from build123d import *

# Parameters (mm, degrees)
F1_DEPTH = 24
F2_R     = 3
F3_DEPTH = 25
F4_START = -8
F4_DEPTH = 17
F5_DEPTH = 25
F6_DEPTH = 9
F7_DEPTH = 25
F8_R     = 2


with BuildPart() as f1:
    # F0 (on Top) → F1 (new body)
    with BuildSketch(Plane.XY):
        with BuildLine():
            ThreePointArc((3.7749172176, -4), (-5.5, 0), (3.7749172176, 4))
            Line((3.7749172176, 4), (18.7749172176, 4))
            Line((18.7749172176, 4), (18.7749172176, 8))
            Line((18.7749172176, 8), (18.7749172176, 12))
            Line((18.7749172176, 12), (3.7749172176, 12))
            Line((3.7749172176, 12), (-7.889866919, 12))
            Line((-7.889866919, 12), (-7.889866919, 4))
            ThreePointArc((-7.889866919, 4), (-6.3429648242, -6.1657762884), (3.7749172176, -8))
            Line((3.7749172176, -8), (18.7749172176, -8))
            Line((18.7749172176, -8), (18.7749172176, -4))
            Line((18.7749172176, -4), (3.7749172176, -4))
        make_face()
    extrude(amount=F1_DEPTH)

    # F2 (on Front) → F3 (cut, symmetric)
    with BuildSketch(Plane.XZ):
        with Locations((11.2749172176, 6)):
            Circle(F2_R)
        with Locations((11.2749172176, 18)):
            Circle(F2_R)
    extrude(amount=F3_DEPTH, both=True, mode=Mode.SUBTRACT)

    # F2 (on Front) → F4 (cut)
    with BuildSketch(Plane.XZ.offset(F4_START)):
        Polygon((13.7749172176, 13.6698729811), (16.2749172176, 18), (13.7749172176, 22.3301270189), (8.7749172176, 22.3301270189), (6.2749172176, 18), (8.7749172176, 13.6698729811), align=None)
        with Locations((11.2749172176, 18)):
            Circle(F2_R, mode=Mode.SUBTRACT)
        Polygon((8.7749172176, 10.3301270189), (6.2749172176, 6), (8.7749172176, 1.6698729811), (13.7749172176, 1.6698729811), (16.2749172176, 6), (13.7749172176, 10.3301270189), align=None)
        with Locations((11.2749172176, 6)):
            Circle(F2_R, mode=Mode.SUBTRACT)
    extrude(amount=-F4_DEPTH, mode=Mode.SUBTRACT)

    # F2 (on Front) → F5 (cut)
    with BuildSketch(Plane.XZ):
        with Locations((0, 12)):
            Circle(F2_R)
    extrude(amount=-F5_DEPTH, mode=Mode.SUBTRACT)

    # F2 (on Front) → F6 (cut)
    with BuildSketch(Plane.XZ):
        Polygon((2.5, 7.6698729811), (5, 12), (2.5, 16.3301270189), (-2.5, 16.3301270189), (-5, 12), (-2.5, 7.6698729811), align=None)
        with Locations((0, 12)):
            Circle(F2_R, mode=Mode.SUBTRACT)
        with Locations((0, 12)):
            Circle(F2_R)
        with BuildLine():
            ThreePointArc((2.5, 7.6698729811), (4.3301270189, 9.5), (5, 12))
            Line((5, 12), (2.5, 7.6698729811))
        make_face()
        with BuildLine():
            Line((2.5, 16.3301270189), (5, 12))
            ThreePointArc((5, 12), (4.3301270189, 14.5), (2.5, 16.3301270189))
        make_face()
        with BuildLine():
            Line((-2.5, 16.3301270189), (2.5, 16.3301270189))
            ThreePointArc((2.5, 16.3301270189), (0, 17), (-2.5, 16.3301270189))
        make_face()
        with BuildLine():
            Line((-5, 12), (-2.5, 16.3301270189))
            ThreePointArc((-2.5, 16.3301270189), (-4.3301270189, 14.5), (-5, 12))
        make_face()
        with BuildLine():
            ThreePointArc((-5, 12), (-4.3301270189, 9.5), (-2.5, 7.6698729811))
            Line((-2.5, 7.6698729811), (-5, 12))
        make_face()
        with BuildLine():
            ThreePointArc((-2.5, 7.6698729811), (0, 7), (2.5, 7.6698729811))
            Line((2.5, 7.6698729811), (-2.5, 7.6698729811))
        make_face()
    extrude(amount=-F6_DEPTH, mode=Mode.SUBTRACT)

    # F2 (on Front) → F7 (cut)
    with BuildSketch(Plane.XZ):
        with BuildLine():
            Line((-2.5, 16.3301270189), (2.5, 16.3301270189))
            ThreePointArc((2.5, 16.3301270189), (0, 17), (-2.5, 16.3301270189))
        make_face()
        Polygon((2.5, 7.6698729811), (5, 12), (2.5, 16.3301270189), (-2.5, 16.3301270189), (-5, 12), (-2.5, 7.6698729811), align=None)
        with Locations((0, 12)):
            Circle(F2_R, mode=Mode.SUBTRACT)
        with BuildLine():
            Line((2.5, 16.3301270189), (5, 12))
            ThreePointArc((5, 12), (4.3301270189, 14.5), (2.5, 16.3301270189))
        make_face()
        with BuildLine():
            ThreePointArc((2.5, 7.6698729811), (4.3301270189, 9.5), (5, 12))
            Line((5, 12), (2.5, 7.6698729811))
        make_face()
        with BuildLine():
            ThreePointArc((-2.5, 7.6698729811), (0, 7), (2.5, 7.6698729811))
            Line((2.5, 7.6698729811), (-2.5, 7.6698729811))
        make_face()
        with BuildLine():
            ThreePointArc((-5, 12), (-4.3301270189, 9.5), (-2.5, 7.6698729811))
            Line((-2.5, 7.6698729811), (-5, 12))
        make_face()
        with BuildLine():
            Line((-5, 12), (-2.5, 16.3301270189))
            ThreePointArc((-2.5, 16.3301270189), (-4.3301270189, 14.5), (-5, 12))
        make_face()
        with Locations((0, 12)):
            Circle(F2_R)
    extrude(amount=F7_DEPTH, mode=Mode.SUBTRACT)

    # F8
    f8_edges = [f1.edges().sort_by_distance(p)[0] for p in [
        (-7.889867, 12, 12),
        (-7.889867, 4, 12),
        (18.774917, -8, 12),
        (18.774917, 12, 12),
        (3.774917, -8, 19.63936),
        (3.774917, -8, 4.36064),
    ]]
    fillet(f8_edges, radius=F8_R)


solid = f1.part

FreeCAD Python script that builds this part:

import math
import FreeCAD as App
import Part
import Sketcher
Q = App.Units.Quantity


def edges_at(feature, points):
    """Names of the edges that pass closest to the given points."""
    edges = feature.Shape.Edges
    near = lambda p: min(range(len(edges)), key=lambda i: edges[i].distToShape(Part.Vertex(*p))[0])
    return sorted({f"Edge{near(p) + 1}" for p in points})

doc = App.newDocument("Part")
body = doc.addObject("PartDesign::Body", "Body")

sketch1 = doc.addObject("Sketcher::SketchObject", "Sketch")
body.addObject(sketch1)
sketch1.AttachmentSupport = (doc.XY_Plane, [""])
sketch1.MapMode = "FlatFace"
sketch1.addGeometry(Part.ArcOfCircle(Part.Circle(App.Vector(0, 0, 0), App.Vector(0, 0, 1), 5.5), math.radians(47), math.radians(313)), False)
sketch1.addGeometry(Part.LineSegment(App.Vector(3.8, 4, 0), App.Vector(18.8, 4, 0)), False)
sketch1.addGeometry(Part.LineSegment(App.Vector(18.8, 4, 0), App.Vector(18.8, 12, 0)), False)
sketch1.addGeometry(Part.LineSegment(App.Vector(18.8, 12, 0), App.Vector(-7.9, 12, 0)), False)
sketch1.addGeometry(Part.LineSegment(App.Vector(-7.9, 12, 0), App.Vector(-7.9, 4, 0)), False)
sketch1.addGeometry(Part.ArcOfCircle(Part.Circle(App.Vector(0, 0, 0), App.Vector(0, 0, 1), 8.8), math.radians(153), math.radians(295)), False)
sketch1.addGeometry(Part.LineSegment(App.Vector(3.8, -8, 0), App.Vector(18.8, -8, 0)), False)
sketch1.addGeometry(Part.LineSegment(App.Vector(18.8, -8, 0), App.Vector(18.8, -4, 0)), False)
sketch1.addGeometry(Part.LineSegment(App.Vector(18.8, -4, 0), App.Vector(3.8, -4, 0)), False)
sketch1.addConstraint(Sketcher.Constraint("Coincident", 0, 1, 1, 1))
sketch1.addConstraint(Sketcher.Constraint("Coincident", 1, 2, 2, 1))
sketch1.addConstraint(Sketcher.Constraint("Coincident", 2, 2, 3, 1))
sketch1.addConstraint(Sketcher.Constraint("Coincident", 3, 2, 4, 1))
sketch1.addConstraint(Sketcher.Constraint("Coincident", 4, 2, 5, 1))
sketch1.addConstraint(Sketcher.Constraint("Coincident", 5, 2, 6, 1))
sketch1.addConstraint(Sketcher.Constraint("Coincident", 6, 2, 7, 1))
sketch1.addConstraint(Sketcher.Constraint("Coincident", 7, 2, 8, 1))
sketch1.addConstraint(Sketcher.Constraint("Coincident", 8, 2, 0, 2))
sketch1.addConstraint(Sketcher.Constraint("Horizontal", 1))
sketch1.addConstraint(Sketcher.Constraint("Vertical", 2))
sketch1.addConstraint(Sketcher.Constraint("Horizontal", 3))
sketch1.addConstraint(Sketcher.Constraint("Vertical", 4))
sketch1.addConstraint(Sketcher.Constraint("Horizontal", 6))
sketch1.addConstraint(Sketcher.Constraint("Vertical", 7))
sketch1.addConstraint(Sketcher.Constraint("Horizontal", 8))
sketch1.addConstraint(Sketcher.Constraint("Coincident", 0, 3, -1, 1))
sketch1.addConstraint(Sketcher.Constraint("Coincident", 5, 3, -1, 1))
sketch1.addConstraint(Sketcher.Constraint("Symmetric", 1, 2, 7, 2, -1))
sketch1.addConstraint(Sketcher.Constraint("Horizontal", 1, 2, 4, 2))
sketch1.addConstraint(Sketcher.Constraint("Vertical", 0, 1, 5, 2))
sketch1.addConstraint(Sketcher.Constraint("Radius", 0, 5.5))
sketch1.addConstraint(Sketcher.Constraint("DistanceX", 1, 1, 1, 2, 15.0))
sketch1.addConstraint(Sketcher.Constraint("DistanceY", 2, 1, 2, 2, 8.0))
sketch1.addConstraint(Sketcher.Constraint("DistanceY", 7, 1, 7, 2, 4.0))
sketch1.addConstraint(Sketcher.Constraint("DistanceY", -1, 1, 0, 1, 4.0))
pad1 = doc.addObject("PartDesign::Pad", "Pad")
body.addObject(pad1)
pad1.Profile = sketch1
pad1.Length = 24

sketch2 = doc.addObject("Sketcher::SketchObject", "Sketch001")
body.addObject(sketch2)
sketch2.AttachmentSupport = (doc.XZ_Plane, [""])
sketch2.MapMode = "FlatFace"
sketch2.addGeometry(Part.Circle(App.Vector(11.3, 6, 0), App.Vector(0, 0, 1), 3), False)
sketch2.addGeometry(Part.Circle(App.Vector(11.3, 18, 0), App.Vector(0, 0, 1), 3), False)
sketch2.addConstraint(Sketcher.Constraint("Equal", 0, 1))
sketch2.addConstraint(Sketcher.Constraint("Vertical", 0, 3, 1, 3))
sketch2.addConstraint(Sketcher.Constraint("Diameter", 0, 6.0))
sketch2.addConstraint(Sketcher.Constraint("DistanceY", -1, 1, 0, 3, 6.0))
sketch2.addConstraint(Sketcher.Constraint("DistanceY", -1, 1, 1, 3, 18.0))
sketch2.addConstraint(Sketcher.Constraint("DistanceX", -1, 1, 0, 3, 11.274917))
pocket1 = doc.addObject("PartDesign::Pocket", "Pocket")
body.addObject(pocket1)
pocket1.Profile = sketch2
pocket1.Length = 50
pocket1.Midplane = True

sketch3 = doc.addObject("Sketcher::SketchObject", "Sketch002")
body.addObject(sketch3)
sketch3.AttachmentSupport = (doc.XZ_Plane, [""])
sketch3.MapMode = "FlatFace"
sketch3.AttachmentOffset = App.Placement(App.Vector(0, 0, -8), App.Rotation())
sketch3.addGeometry(Part.LineSegment(App.Vector(13.8, 13.7, 0), App.Vector(16.3, 18, 0)), False)
sketch3.addGeometry(Part.LineSegment(App.Vector(16.3, 18, 0), App.Vector(13.8, 22.3, 0)), False)
sketch3.addGeometry(Part.LineSegment(App.Vector(13.8, 22.3, 0), App.Vector(8.8, 22.3, 0)), False)
sketch3.addGeometry(Part.LineSegment(App.Vector(8.8, 22.3, 0), App.Vector(6.3, 18, 0)), False)
sketch3.addGeometry(Part.LineSegment(App.Vector(6.3, 18, 0), App.Vector(8.8, 13.7, 0)), False)
sketch3.addGeometry(Part.LineSegment(App.Vector(8.8, 13.7, 0), App.Vector(13.8, 13.7, 0)), False)
sketch3.addGeometry(Part.Circle(App.Vector(11.3, 18, 0), App.Vector(0, 0, 1), 3), False)
sketch3.addGeometry(Part.LineSegment(App.Vector(8.8, 10.3, 0), App.Vector(6.3, 6, 0)), False)
sketch3.addGeometry(Part.LineSegment(App.Vector(6.3, 6, 0), App.Vector(8.8, 1.7, 0)), False)
sketch3.addGeometry(Part.LineSegment(App.Vector(8.8, 1.7, 0), App.Vector(13.8, 1.7, 0)), False)
sketch3.addGeometry(Part.LineSegment(App.Vector(13.8, 1.7, 0), App.Vector(16.3, 6, 0)), False)
sketch3.addGeometry(Part.LineSegment(App.Vector(16.3, 6, 0), App.Vector(13.8, 10.3, 0)), False)
sketch3.addGeometry(Part.LineSegment(App.Vector(13.8, 10.3, 0), App.Vector(8.8, 10.3, 0)), False)
sketch3.addGeometry(Part.Circle(App.Vector(11.3, 6, 0), App.Vector(0, 0, 1), 3), False)
sketch3.addConstraint(Sketcher.Constraint("Coincident", 0, 2, 1, 1))
sketch3.addConstraint(Sketcher.Constraint("Coincident", 1, 2, 2, 1))
sketch3.addConstraint(Sketcher.Constraint("Coincident", 2, 2, 3, 1))
sketch3.addConstraint(Sketcher.Constraint("Coincident", 3, 2, 4, 1))
sketch3.addConstraint(Sketcher.Constraint("Coincident", 4, 2, 5, 1))
sketch3.addConstraint(Sketcher.Constraint("Coincident", 5, 2, 0, 1))
sketch3.addConstraint(Sketcher.Constraint("Coincident", 7, 2, 8, 1))
sketch3.addConstraint(Sketcher.Constraint("Coincident", 8, 2, 9, 1))
sketch3.addConstraint(Sketcher.Constraint("Coincident", 9, 2, 10, 1))
sketch3.addConstraint(Sketcher.Constraint("Coincident", 10, 2, 11, 1))
sketch3.addConstraint(Sketcher.Constraint("Coincident", 11, 2, 12, 1))
sketch3.addConstraint(Sketcher.Constraint("Coincident", 12, 2, 7, 1))
sketch3.addConstraint(Sketcher.Constraint("Horizontal", 2))
sketch3.addConstraint(Sketcher.Constraint("Horizontal", 5))
sketch3.addConstraint(Sketcher.Constraint("Horizontal", 9))
sketch3.addConstraint(Sketcher.Constraint("Horizontal", 12))
sketch3.addConstraint(Sketcher.Constraint("Equal", 6, 13))
sketch3.addConstraint(Sketcher.Constraint("Parallel", 0, 3))
sketch3.addConstraint(Sketcher.Constraint("Parallel", 1, 4))
sketch3.addConstraint(Sketcher.Constraint("Parallel", 3, 7))
sketch3.addConstraint(Sketcher.Constraint("Parallel", 4, 8))
sketch3.addConstraint(Sketcher.Constraint("Parallel", 7, 10))
sketch3.addConstraint(Sketcher.Constraint("Parallel", 8, 11))
sketch3.addConstraint(Sketcher.Constraint("Horizontal", 6, 3, 0, 2))
sketch3.addConstraint(Sketcher.Constraint("Horizontal", 0, 2, 3, 2))
sketch3.addConstraint(Sketcher.Constraint("Horizontal", 13, 3, 7, 2))
sketch3.addConstraint(Sketcher.Constraint("Horizontal", 7, 2, 10, 2))
sketch3.addConstraint(Sketcher.Constraint("Vertical", 6, 3, 13, 3))
sketch3.addConstraint(Sketcher.Constraint("Vertical", 2, 2, 4, 2))
sketch3.addConstraint(Sketcher.Constraint("Vertical", 1, 2, 5, 2))
sketch3.addConstraint(Sketcher.Constraint("Vertical", 3, 2, 7, 2))
sketch3.addConstraint(Sketcher.Constraint("Vertical", 4, 2, 8, 2))
sketch3.addConstraint(Sketcher.Constraint("Vertical", 5, 2, 9, 2))
sketch3.addConstraint(Sketcher.Constraint("Vertical", 9, 2, 11, 2))
sketch3.addConstraint(Sketcher.Constraint("Diameter", 6, 6.0))
sketch3.addConstraint(Sketcher.Constraint("DistanceX", 2, 2, 2, 1, 5.0))
sketch3.addConstraint(Sketcher.Constraint("Angle", 0, Q("60 deg")))
sketch3.addConstraint(Sketcher.Constraint("Distance", 0, 5.0))
sketch3.addConstraint(Sketcher.Constraint("DistanceY", -1, 1, 6, 3, 18.0))
sketch3.addConstraint(Sketcher.Constraint("DistanceY", -1, 1, 13, 3, 6.0))
sketch3.addConstraint(Sketcher.Constraint("DistanceX", 6, 3, 0, 2, 5.0))
sketch3.addConstraint(Sketcher.Constraint("DistanceX", -1, 1, 6, 3, 11.274917))
pocket2 = doc.addObject("PartDesign::Pocket", "Pocket001")
body.addObject(pocket2)
pocket2.Profile = sketch3
pocket2.Length = 17

sketch4 = doc.addObject("Sketcher::SketchObject", "Sketch003")
body.addObject(sketch4)
sketch4.AttachmentSupport = (doc.XZ_Plane, [""])
sketch4.MapMode = "FlatFace"
sketch4.addGeometry(Part.Circle(App.Vector(0, 12, 0), App.Vector(0, 0, 1), 3), False)
sketch4.addConstraint(Sketcher.Constraint("PointOnObject", 0, 3, -2))
sketch4.addConstraint(Sketcher.Constraint("Diameter", 0, 6.0))
sketch4.addConstraint(Sketcher.Constraint("DistanceY", -1, 1, 0, 3, 12.0))
pocket3 = doc.addObject("PartDesign::Pocket", "Pocket002")
body.addObject(pocket3)
pocket3.Profile = sketch4
pocket3.Length = 25

sketch5 = doc.addObject("Sketcher::SketchObject", "Sketch004")
body.addObject(sketch5)
sketch5.AttachmentSupport = (doc.XZ_Plane, [""])
sketch5.MapMode = "FlatFace"
sketch5.addGeometry(Part.ArcOfCircle(Part.Circle(App.Vector(0, 12, 0), App.Vector(0, 0, 1), 5), math.radians(-60), math.radians(0)), False)
sketch5.addGeometry(Part.ArcOfCircle(Part.Circle(App.Vector(0, 12, 0), App.Vector(0, 0, 1), 5), math.radians(0), math.radians(60)), False)
sketch5.addGeometry(Part.ArcOfCircle(Part.Circle(App.Vector(0, 12, 0), App.Vector(0, 0, 1), 5), math.radians(60), math.radians(120)), False)
sketch5.addGeometry(Part.ArcOfCircle(Part.Circle(App.Vector(0, 12, 0), App.Vector(0, 0, 1), 5), math.radians(120), math.radians(180)), False)
sketch5.addGeometry(Part.ArcOfCircle(Part.Circle(App.Vector(0, 12, 0), App.Vector(0, 0, 1), 5), math.radians(180), math.radians(240)), False)
sketch5.addGeometry(Part.ArcOfCircle(Part.Circle(App.Vector(0, 12, 0), App.Vector(0, 0, 1), 5), math.radians(-120), math.radians(-60)), False)
sketch5.addConstraint(Sketcher.Constraint("Tangent", 0, 2, 1, 1))
sketch5.addConstraint(Sketcher.Constraint("Tangent", 1, 2, 2, 1))
sketch5.addConstraint(Sketcher.Constraint("Tangent", 2, 2, 3, 1))
sketch5.addConstraint(Sketcher.Constraint("Tangent", 3, 2, 4, 1))
sketch5.addConstraint(Sketcher.Constraint("Tangent", 4, 2, 5, 1))
sketch5.addConstraint(Sketcher.Constraint("Tangent", 5, 2, 0, 1))
sketch5.addConstraint(Sketcher.Constraint("Coincident", 2, 3, 0, 3))
sketch5.addConstraint(Sketcher.Constraint("Equal", 2, 3))
sketch5.addConstraint(Sketcher.Constraint("Symmetric", 1, 2, 2, 2, -2))
sketch5.addConstraint(Sketcher.Constraint("Horizontal", 5, 3, 0, 2))
sketch5.addConstraint(Sketcher.Constraint("Horizontal", 0, 2, 3, 2))
sketch5.addConstraint(Sketcher.Constraint("Horizontal", 4, 2, 5, 2))
sketch5.addConstraint(Sketcher.Constraint("Vertical", 2, 2, 4, 2))
sketch5.addConstraint(Sketcher.Constraint("Radius", 0, 5.0))
sketch5.addConstraint(Sketcher.Constraint("DistanceY", -1, 1, 0, 3, 12.0))
sketch5.addConstraint(Sketcher.Constraint("DistanceX", 2, 2, 1, 2, 5.0))
pocket4 = doc.addObject("PartDesign::Pocket", "Pocket003")
body.addObject(pocket4)
pocket4.Profile = sketch5
pocket4.Length = 9

sketch6 = doc.addObject("Sketcher::SketchObject", "Sketch005")
body.addObject(sketch6)
sketch6.AttachmentSupport = (doc.XZ_Plane, [""])
sketch6.MapMode = "FlatFace"
sketch6.addGeometry(Part.ArcOfCircle(Part.Circle(App.Vector(0, 12, 0), App.Vector(0, 0, 1), 5), math.radians(60), math.radians(120)), False)
sketch6.addGeometry(Part.ArcOfCircle(Part.Circle(App.Vector(0, 12, 0), App.Vector(0, 0, 1), 5), math.radians(120), math.radians(180)), False)
sketch6.addGeometry(Part.ArcOfCircle(Part.Circle(App.Vector(0, 12, 0), App.Vector(0, 0, 1), 5), math.radians(180), math.radians(240)), False)
sketch6.addGeometry(Part.ArcOfCircle(Part.Circle(App.Vector(0, 12, 0), App.Vector(0, 0, 1), 5), math.radians(-120), math.radians(-60)), False)
sketch6.addGeometry(Part.ArcOfCircle(Part.Circle(App.Vector(0, 12, 0), App.Vector(0, 0, 1), 5), math.radians(-60), math.radians(0)), False)
sketch6.addGeometry(Part.ArcOfCircle(Part.Circle(App.Vector(0, 12, 0), App.Vector(0, 0, 1), 5), math.radians(0), math.radians(60)), False)
sketch6.addConstraint(Sketcher.Constraint("Tangent", 0, 2, 1, 1))
sketch6.addConstraint(Sketcher.Constraint("Tangent", 1, 2, 2, 1))
sketch6.addConstraint(Sketcher.Constraint("Tangent", 2, 2, 3, 1))
sketch6.addConstraint(Sketcher.Constraint("Tangent", 3, 2, 4, 1))
sketch6.addConstraint(Sketcher.Constraint("Tangent", 4, 2, 5, 1))
sketch6.addConstraint(Sketcher.Constraint("Tangent", 5, 2, 0, 1))
sketch6.addConstraint(Sketcher.Constraint("Coincident", 2, 3, 0, 3))
sketch6.addConstraint(Sketcher.Constraint("Equal", 2, 3))
sketch6.addConstraint(Sketcher.Constraint("Symmetric", 2, 2, 3, 2, -2))
sketch6.addConstraint(Sketcher.Constraint("Horizontal", 5, 3, 1, 2))
sketch6.addConstraint(Sketcher.Constraint("Horizontal", 1, 2, 4, 2))
sketch6.addConstraint(Sketcher.Constraint("Horizontal", 0, 2, 5, 2))
sketch6.addConstraint(Sketcher.Constraint("Vertical", 0, 2, 2, 2))
sketch6.addConstraint(Sketcher.Constraint("Radius", 0, 5.0))
sketch6.addConstraint(Sketcher.Constraint("DistanceY", -1, 1, 0, 3, 12.0))
sketch6.addConstraint(Sketcher.Constraint("DistanceX", 2, 2, 3, 2, 5.0))
pocket5 = doc.addObject("PartDesign::Pocket", "Pocket004")
body.addObject(pocket5)
pocket5.Profile = sketch6
pocket5.Length = 25
pocket5.Reversed = True
doc.recompute()

fillet = doc.addObject("PartDesign::Fillet", "Fillet")
body.addObject(fillet)
fillet.Base = (pocket5, edges_at(pocket5, [
    (-7.89, 12, 12),
    (-7.89, 4, 12),
    (18.775, -8, 12),
    (18.775, 12, 12),
    (3.775, -8, 19.639),
    (3.775, -8, 4.361),
]))
fillet.Radius = 2

doc.recompute()
